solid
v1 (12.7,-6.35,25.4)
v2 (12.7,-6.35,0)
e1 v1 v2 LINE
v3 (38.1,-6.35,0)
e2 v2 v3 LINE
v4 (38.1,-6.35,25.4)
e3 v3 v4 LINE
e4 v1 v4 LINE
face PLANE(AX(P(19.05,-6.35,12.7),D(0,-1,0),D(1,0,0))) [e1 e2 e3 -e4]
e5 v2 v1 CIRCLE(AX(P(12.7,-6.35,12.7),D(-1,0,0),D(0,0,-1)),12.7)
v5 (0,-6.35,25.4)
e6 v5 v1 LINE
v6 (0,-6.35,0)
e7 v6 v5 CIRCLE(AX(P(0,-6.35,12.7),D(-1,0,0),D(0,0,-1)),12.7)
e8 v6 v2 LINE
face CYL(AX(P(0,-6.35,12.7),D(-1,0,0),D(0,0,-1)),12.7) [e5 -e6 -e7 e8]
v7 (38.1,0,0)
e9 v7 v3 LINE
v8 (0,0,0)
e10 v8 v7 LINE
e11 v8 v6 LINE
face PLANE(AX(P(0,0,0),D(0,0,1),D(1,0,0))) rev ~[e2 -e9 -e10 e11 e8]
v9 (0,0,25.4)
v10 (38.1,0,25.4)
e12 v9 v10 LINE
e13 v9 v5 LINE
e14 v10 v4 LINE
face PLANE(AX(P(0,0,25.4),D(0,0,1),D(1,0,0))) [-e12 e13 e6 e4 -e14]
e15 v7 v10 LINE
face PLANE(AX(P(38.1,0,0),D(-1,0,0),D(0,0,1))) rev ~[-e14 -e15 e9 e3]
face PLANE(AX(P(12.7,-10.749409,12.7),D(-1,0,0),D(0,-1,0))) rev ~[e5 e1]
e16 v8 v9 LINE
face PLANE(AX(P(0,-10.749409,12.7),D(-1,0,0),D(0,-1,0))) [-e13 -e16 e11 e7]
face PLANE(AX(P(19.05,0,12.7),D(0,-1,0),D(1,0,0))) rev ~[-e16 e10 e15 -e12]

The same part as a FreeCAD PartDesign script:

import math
import FreeCAD as App
import Part
import Sketcher

V = App.Vector
Q = App.Units.Quantity


def add_polygon(sketch, points):
    """Adds a closed chain of lines whose ends are joined by coincident constraints."""
    first, n = sketch.GeometryCount, len(points)
    for a, b in zip(points, points[1:] + points[:1]):
        sketch.addGeometry(Part.LineSegment(App.Vector(*a, 0), App.Vector(*b, 0)), False)
    for i in range(n):
        sketch.addConstraint(Sketcher.Constraint("Coincident", first + i, 2, first + (i + 1) % n, 1))

doc = App.newDocument("Part")
body = doc.addObject("PartDesign::Body", "Body")

# Sketch on XZ plane
sketch1 = body.newObject("Sketcher::SketchObject", "Sketch")
sketch1.AttachmentSupport = (doc.getObject("XZ_Plane"), [""])
sketch1.MapMode = "FlatFace"
add_polygon(sketch1, [(0, 25), (0, 0), (38, 0), (38, 25)])  # lines 0-3
sketch1.addConstraint([
    Sketcher.Constraint("Vertical", 0),
    Sketcher.Constraint("Horizontal", 1),
    Sketcher.Constraint("Vertical", 2),
    Sketcher.Constraint("Horizontal", 3),
    Sketcher.Constraint("Coincident", 0, 2, -1, 1),
    Sketcher.Constraint("DistanceY", 0, 2, 0, 1, Q("1 in")),
    Sketcher.Constraint("DistanceX", 1, 1, 1, 2, Q("1.5 in")),
])
pad1 = body.newObject("PartDesign::Pad", "Pad")
pad1.Profile = sketch1
pad1.Length = Q("0.25 in")

# Sketch on YZ plane
sketch2 = body.newObject("Sketcher::SketchObject", "Sketch001")
sketch2.AttachmentSupport = (doc.getObject("YZ_Plane"), [""])
sketch2.MapMode = "FlatFace"
sketch2.addGeometry([
    Part.LineSegment(V(-6, 25, 0), V(-6, 0, 0)),
    Part.ArcOfCircle(Part.Circle(V(-6, 13, 0), V(0, 0, 1), 13), math.radians(90), math.radians(270)),
], False)
sketch2.addConstraint([
    Sketcher.Constraint("Coincident", 0, 1, 1, 1),
    Sketcher.Constraint("Coincident", 1, 2, 0, 2),
    Sketcher.Constraint("Vertical", 0),
    Sketcher.Constraint("PointOnObject", 1, 2, -1),
    Sketcher.Constraint("Vertical", 1, 3, 0, 1),
    Sketcher.Constraint("Radius", 1, Q("0.5 in")),
    Sketcher.Constraint("DistanceX", 1, 3, -1, 1, Q("0.25 in")),
])
pad2 = body.newObject("PartDesign::Pad", "Pad001")
pad2.Profile = sketch2
pad2.Length = Q("0.5 in")

doc.recompute()
